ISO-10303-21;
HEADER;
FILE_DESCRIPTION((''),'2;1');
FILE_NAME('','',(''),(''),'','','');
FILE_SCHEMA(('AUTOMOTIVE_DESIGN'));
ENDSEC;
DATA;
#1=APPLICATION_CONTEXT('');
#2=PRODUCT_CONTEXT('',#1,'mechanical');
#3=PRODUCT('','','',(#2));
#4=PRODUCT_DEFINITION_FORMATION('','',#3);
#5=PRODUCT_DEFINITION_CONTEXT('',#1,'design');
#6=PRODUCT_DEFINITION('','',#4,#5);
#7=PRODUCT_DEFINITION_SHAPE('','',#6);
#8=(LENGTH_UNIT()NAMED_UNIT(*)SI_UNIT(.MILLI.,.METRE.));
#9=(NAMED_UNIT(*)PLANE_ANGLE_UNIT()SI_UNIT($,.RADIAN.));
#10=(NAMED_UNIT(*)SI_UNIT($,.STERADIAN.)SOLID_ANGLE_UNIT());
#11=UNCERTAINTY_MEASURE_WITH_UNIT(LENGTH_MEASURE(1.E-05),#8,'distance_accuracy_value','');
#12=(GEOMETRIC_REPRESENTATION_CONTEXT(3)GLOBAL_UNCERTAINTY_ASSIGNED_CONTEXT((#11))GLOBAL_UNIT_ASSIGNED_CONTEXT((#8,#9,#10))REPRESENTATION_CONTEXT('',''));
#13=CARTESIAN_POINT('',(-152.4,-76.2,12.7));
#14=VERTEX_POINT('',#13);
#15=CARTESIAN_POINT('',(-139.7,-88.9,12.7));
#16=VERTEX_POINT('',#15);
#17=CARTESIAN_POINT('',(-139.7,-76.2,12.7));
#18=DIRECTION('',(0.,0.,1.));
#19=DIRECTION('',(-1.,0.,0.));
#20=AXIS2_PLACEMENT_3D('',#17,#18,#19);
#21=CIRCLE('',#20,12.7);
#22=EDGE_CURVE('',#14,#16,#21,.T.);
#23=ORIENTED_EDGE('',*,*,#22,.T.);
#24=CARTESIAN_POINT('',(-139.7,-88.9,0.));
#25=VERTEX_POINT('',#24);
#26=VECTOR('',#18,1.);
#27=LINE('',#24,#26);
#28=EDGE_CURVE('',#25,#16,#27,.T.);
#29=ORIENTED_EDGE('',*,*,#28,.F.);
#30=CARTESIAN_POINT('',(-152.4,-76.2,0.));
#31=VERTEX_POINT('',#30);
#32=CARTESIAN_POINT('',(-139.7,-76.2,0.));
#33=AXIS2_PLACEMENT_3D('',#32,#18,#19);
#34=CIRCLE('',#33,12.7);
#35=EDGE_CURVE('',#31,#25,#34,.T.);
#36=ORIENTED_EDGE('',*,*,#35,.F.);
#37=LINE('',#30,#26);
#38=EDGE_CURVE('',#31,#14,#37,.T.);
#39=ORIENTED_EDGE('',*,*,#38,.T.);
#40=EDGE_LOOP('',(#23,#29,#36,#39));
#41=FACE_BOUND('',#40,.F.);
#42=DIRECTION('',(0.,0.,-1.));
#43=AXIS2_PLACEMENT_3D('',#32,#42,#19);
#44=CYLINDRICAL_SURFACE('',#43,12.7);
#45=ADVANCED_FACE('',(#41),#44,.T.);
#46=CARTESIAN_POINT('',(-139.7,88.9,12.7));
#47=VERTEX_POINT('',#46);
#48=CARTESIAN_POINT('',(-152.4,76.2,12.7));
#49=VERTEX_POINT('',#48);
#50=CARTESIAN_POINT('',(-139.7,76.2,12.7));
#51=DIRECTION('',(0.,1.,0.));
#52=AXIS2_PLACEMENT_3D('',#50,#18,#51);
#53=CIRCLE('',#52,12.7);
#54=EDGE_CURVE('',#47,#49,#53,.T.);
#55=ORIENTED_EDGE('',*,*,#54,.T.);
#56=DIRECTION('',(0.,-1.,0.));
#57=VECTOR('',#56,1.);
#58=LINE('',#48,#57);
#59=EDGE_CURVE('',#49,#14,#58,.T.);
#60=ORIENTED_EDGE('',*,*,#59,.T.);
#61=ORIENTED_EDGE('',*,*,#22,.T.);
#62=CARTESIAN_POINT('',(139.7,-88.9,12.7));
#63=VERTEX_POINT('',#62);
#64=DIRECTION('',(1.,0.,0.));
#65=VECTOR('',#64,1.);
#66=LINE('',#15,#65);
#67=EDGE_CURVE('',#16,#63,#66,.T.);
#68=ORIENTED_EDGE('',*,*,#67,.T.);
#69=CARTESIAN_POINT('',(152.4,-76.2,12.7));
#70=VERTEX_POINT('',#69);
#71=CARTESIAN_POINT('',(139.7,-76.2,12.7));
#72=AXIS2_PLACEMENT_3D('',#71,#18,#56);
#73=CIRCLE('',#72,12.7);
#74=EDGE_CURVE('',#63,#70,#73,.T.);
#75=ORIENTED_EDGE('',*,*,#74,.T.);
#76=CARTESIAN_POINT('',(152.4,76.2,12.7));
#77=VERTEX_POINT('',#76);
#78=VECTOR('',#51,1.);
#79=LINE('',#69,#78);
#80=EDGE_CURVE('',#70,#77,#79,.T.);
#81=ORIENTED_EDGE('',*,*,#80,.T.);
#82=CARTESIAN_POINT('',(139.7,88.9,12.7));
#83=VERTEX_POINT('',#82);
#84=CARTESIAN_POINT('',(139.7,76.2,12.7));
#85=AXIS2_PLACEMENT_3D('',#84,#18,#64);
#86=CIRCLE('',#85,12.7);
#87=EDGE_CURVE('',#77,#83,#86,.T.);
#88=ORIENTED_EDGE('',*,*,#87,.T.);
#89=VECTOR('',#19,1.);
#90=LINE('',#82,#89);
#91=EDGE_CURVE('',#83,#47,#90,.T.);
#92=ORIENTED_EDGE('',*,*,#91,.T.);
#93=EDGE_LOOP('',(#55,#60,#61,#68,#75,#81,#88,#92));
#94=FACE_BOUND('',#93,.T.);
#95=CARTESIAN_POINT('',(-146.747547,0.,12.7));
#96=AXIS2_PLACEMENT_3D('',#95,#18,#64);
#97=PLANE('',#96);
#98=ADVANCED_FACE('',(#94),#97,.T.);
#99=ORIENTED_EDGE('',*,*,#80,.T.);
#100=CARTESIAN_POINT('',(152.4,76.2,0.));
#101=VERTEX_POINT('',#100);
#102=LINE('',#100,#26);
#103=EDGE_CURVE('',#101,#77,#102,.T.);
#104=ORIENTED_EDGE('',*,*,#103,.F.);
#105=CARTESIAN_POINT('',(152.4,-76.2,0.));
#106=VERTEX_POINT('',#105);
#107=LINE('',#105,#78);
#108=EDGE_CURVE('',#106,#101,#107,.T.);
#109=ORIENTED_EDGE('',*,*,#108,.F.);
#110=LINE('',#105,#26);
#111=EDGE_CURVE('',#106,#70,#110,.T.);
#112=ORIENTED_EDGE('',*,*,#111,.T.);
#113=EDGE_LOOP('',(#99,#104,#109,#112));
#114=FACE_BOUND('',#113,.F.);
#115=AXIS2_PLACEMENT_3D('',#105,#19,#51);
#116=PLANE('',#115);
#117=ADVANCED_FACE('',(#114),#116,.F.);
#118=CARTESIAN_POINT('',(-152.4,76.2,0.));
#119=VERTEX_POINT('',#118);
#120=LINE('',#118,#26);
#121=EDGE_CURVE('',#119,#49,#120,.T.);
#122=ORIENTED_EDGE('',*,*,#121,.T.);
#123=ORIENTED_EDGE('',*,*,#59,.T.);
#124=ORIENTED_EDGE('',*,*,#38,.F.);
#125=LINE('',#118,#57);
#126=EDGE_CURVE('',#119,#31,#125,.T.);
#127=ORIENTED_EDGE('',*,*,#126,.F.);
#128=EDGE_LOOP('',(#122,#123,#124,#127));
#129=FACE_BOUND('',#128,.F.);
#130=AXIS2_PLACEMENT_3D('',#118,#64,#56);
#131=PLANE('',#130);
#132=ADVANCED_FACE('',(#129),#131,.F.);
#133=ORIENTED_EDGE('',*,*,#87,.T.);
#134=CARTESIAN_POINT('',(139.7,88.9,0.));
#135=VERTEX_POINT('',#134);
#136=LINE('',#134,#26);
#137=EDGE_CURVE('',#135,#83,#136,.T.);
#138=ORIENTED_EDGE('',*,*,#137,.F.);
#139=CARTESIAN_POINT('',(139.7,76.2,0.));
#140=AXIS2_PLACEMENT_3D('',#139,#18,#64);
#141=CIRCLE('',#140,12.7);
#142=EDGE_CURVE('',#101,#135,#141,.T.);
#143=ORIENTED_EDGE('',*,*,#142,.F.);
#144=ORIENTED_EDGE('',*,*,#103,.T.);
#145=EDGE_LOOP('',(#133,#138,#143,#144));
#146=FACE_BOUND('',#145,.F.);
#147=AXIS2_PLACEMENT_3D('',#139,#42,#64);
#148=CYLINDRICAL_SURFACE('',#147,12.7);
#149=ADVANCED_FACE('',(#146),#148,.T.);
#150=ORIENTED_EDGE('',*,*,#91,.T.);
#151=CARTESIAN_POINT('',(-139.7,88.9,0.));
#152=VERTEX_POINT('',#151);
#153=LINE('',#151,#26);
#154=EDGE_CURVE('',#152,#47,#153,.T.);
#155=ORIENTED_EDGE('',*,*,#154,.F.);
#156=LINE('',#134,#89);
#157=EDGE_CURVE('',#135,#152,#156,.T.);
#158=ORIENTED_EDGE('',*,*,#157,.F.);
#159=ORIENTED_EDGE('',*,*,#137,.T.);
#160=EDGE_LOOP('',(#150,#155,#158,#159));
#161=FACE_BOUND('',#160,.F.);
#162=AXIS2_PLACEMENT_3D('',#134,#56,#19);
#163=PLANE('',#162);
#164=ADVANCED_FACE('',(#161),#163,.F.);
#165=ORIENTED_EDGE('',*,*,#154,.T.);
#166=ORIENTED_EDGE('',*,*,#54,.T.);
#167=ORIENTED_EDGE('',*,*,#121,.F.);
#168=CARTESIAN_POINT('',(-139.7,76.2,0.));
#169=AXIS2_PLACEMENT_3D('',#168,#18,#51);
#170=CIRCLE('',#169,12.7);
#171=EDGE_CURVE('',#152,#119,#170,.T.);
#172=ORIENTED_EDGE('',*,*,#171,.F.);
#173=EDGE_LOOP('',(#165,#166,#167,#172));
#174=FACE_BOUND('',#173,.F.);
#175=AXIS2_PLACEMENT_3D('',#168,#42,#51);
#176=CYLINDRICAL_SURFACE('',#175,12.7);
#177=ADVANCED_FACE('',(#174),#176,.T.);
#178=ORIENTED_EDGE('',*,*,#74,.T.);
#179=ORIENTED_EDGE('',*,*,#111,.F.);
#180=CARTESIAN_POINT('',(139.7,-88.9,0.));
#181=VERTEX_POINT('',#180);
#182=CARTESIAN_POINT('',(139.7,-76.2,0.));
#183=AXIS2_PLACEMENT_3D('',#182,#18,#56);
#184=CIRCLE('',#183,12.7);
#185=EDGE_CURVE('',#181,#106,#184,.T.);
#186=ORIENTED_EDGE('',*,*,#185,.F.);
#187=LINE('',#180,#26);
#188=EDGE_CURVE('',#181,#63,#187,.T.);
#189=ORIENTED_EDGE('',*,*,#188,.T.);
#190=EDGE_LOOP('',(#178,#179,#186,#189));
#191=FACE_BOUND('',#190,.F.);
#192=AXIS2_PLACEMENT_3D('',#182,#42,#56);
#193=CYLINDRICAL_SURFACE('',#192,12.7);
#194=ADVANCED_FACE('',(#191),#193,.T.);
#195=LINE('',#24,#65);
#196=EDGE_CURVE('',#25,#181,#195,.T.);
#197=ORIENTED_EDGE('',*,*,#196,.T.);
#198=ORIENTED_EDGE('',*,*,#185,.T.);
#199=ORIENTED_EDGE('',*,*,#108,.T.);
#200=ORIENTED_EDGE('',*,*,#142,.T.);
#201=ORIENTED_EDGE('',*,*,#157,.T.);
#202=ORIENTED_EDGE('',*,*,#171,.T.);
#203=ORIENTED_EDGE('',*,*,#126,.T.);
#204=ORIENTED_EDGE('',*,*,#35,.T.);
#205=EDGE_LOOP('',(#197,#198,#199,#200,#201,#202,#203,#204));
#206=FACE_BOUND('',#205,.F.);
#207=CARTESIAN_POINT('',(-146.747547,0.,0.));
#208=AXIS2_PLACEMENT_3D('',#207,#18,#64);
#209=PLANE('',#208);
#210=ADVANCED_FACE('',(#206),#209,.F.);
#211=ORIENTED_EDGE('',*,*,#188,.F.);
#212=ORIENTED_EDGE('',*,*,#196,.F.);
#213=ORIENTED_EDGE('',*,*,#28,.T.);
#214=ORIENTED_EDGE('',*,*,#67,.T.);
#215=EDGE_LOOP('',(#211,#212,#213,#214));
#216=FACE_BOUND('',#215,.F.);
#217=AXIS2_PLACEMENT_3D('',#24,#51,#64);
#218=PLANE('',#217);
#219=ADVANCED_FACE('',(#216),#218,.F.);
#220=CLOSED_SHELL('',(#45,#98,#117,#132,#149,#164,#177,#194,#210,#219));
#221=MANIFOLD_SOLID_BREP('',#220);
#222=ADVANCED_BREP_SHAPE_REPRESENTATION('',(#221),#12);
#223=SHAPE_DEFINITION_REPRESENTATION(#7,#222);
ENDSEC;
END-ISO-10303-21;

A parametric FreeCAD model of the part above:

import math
import FreeCAD as App
import Part
import Sketcher
Q = App.Units.Quantity

doc = App.newDocument("Part")
params = doc.addObject("Spreadsheet::Sheet", "Params")
for row, (alias, value) in enumerate([
    ("sketch1_radius", "0.5 in"),
    ("sketch1_width", "11 in"),
    ("sketch1_height", "6 in"),
    ("pad1_length", "0.5 in"),
], start=1):
    params.set(f"A{row}", alias)
    params.set(f"B{row}", "=" + value)
    params.setAlias(f"B{row}", alias)

body = doc.addObject("PartDesign::Body", "Body")

# Sketch on XY plane
sketch1 = body.newObject("Sketcher::SketchObject", "Sketch")
sketch1.AttachmentSupport = (doc.getObject("XY_Plane"), [""])
sketch1.MapMode = "FlatFace"
sketch1.addGeometry(Part.ArcOfCircle(Part.Circle(App.Vector(-140, -76, 0), App.Vector(0, 0, 1), 13), math.radians(180), math.radians(270)), False)
sketch1.addGeometry(Part.LineSegment(App.Vector(-140, -89, 0), App.Vector(140, -89, 0)), False)
sketch1.addGeometry(Part.ArcOfCircle(Part.Circle(App.Vector(140, -76, 0), App.Vector(0, 0, 1), 13), math.radians(-90), math.radians(0)), False)
sketch1.addGeometry(Part.LineSegment(App.Vector(152, -76, 0), App.Vector(152, 76, 0)), False)
sketch1.addGeometry(Part.ArcOfCircle(Part.Circle(App.Vector(140, 76, 0), App.Vector(0, 0, 1), 13), math.radians(0), math.radians(90)), False)
sketch1.addGeometry(Part.LineSegment(App.Vector(140, 89, 0), App.Vector(-140, 89, 0)), False)
sketch1.addGeometry(Part.ArcOfCircle(Part.Circle(App.Vector(-140, 76, 0), App.Vector(0, 0, 1), 13), math.radians(90), math.radians(180)), False)
sketch1.addGeometry(Part.LineSegment(App.Vector(-152, 76, 0), App.Vector(-152, -76, 0)), False)
sketch1.addConstraint(Sketcher.Constraint("Tangent", 0, 2, 1, 1))
sketch1.addConstraint(Sketcher.Constraint("Tangent", 1, 2, 2, 1))
sketch1.addConstraint(Sketcher.Constraint("Tangent", 2, 2, 3, 1))
sketch1.addConstraint(Sketcher.Constraint("Tangent", 3, 2, 4, 1))
sketch1.addConstraint(Sketcher.Constraint("Tangent", 4, 2, 5, 1))
sketch1.addConstraint(Sketcher.Constraint("Tangent", 5, 2, 6, 1))
sketch1.addConstraint(Sketcher.Constraint("Tangent", 6, 2, 7, 1))
sketch1.addConstraint(Sketcher.Constraint("Tangent", 7, 2, 0, 1))
sketch1.addConstraint(Sketcher.Constraint("Horizontal", 1))
sketch1.addConstraint(Sketcher.Constraint("Vertical", 3))
sketch1.addConstraint(Sketcher.Constraint("Horizontal", 5))
sketch1.addConstraint(Sketcher.Constraint("Vertical", 7))
sketch1.addConstraint(Sketcher.Constraint("Equal", 0, 2))
sketch1.addConstraint(Sketcher.Constraint("Equal", 2, 4))
sketch1.addConstraint(Sketcher.Constraint("Equal", 4, 6))
sketch1.addConstraint(Sketcher.Constraint("Symmetric", 0, 3, 4, 3, -1, 1))
sketch1.addConstraint(Sketcher.Constraint("Radius", 0, Q("0.5 in")))
sketch1.addConstraint(Sketcher.Constraint("DistanceX", 1, 1, 1, 2, Q("11 in")))
sketch1.addConstraint(Sketcher.Constraint("DistanceY", 3, 1, 3, 2, Q("6 in")))
sketch1.setExpression("Constraints[16]", "Params.sketch1_radius")
sketch1.setExpression("Constraints[17]", "Params.sketch1_width")
sketch1.setExpression("Constraints[18]", "Params.sketch1_height")
pad1 = body.newObject("PartDesign::Pad", "Pad")
pad1.Profile = sketch1
pad1.setExpression("Length", "Params.pad1_length")

doc.recompute()
